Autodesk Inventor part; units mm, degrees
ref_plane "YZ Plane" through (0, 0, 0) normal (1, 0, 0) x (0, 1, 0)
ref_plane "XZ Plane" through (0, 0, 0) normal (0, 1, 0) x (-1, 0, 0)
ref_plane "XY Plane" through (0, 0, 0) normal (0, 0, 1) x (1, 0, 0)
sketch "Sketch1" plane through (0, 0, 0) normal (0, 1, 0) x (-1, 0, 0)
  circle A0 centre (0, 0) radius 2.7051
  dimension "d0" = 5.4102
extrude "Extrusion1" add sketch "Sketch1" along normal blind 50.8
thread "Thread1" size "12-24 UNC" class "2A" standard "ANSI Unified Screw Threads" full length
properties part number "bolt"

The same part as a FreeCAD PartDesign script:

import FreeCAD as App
import Part
import Sketcher
Q = App.Units.Quantity

doc = App.newDocument("Part")
params = doc.addObject("Spreadsheet::Sheet", "Params")
for row, (alias, value) in enumerate([
    ("sketch1_diameter", "0.213 in"),
    ("pad1_length", "2 in"),
], start=1):
    params.set(f"A{row}", alias)
    params.set(f"B{row}", "=" + value)
    params.setAlias(f"B{row}", alias)

body = doc.addObject("PartDesign::Body", "Body")

# Sketch on XZ plane
sketch1 = doc.addObject("Sketcher::SketchObject", "Sketch")
body.addObject(sketch1)
sketch1.AttachmentSupport = (doc.XZ_Plane, [""])
sketch1.MapMode = "FlatFace"
sketch1.addGeometry(Part.Circle(App.Vector(0, 0, 0), App.Vector(0, 0, 1), 2.7), False)
sketch1.addConstraint([
    Sketcher.Constraint("Coincident", 0, 3, -1, 1),
    Sketcher.Constraint("Diameter", 0, Q("0.213 in")),
])
sketch1.setExpression("Constraints[1]", "Params.sketch1_diameter")
pad1 = doc.addObject("PartDesign::Pad", "Pad")
body.addObject(pad1)
pad1.Profile = sketch1
pad1.setExpression("Length", "Params.pad1_length")
pad1.Reversed = True

doc.recompute()
